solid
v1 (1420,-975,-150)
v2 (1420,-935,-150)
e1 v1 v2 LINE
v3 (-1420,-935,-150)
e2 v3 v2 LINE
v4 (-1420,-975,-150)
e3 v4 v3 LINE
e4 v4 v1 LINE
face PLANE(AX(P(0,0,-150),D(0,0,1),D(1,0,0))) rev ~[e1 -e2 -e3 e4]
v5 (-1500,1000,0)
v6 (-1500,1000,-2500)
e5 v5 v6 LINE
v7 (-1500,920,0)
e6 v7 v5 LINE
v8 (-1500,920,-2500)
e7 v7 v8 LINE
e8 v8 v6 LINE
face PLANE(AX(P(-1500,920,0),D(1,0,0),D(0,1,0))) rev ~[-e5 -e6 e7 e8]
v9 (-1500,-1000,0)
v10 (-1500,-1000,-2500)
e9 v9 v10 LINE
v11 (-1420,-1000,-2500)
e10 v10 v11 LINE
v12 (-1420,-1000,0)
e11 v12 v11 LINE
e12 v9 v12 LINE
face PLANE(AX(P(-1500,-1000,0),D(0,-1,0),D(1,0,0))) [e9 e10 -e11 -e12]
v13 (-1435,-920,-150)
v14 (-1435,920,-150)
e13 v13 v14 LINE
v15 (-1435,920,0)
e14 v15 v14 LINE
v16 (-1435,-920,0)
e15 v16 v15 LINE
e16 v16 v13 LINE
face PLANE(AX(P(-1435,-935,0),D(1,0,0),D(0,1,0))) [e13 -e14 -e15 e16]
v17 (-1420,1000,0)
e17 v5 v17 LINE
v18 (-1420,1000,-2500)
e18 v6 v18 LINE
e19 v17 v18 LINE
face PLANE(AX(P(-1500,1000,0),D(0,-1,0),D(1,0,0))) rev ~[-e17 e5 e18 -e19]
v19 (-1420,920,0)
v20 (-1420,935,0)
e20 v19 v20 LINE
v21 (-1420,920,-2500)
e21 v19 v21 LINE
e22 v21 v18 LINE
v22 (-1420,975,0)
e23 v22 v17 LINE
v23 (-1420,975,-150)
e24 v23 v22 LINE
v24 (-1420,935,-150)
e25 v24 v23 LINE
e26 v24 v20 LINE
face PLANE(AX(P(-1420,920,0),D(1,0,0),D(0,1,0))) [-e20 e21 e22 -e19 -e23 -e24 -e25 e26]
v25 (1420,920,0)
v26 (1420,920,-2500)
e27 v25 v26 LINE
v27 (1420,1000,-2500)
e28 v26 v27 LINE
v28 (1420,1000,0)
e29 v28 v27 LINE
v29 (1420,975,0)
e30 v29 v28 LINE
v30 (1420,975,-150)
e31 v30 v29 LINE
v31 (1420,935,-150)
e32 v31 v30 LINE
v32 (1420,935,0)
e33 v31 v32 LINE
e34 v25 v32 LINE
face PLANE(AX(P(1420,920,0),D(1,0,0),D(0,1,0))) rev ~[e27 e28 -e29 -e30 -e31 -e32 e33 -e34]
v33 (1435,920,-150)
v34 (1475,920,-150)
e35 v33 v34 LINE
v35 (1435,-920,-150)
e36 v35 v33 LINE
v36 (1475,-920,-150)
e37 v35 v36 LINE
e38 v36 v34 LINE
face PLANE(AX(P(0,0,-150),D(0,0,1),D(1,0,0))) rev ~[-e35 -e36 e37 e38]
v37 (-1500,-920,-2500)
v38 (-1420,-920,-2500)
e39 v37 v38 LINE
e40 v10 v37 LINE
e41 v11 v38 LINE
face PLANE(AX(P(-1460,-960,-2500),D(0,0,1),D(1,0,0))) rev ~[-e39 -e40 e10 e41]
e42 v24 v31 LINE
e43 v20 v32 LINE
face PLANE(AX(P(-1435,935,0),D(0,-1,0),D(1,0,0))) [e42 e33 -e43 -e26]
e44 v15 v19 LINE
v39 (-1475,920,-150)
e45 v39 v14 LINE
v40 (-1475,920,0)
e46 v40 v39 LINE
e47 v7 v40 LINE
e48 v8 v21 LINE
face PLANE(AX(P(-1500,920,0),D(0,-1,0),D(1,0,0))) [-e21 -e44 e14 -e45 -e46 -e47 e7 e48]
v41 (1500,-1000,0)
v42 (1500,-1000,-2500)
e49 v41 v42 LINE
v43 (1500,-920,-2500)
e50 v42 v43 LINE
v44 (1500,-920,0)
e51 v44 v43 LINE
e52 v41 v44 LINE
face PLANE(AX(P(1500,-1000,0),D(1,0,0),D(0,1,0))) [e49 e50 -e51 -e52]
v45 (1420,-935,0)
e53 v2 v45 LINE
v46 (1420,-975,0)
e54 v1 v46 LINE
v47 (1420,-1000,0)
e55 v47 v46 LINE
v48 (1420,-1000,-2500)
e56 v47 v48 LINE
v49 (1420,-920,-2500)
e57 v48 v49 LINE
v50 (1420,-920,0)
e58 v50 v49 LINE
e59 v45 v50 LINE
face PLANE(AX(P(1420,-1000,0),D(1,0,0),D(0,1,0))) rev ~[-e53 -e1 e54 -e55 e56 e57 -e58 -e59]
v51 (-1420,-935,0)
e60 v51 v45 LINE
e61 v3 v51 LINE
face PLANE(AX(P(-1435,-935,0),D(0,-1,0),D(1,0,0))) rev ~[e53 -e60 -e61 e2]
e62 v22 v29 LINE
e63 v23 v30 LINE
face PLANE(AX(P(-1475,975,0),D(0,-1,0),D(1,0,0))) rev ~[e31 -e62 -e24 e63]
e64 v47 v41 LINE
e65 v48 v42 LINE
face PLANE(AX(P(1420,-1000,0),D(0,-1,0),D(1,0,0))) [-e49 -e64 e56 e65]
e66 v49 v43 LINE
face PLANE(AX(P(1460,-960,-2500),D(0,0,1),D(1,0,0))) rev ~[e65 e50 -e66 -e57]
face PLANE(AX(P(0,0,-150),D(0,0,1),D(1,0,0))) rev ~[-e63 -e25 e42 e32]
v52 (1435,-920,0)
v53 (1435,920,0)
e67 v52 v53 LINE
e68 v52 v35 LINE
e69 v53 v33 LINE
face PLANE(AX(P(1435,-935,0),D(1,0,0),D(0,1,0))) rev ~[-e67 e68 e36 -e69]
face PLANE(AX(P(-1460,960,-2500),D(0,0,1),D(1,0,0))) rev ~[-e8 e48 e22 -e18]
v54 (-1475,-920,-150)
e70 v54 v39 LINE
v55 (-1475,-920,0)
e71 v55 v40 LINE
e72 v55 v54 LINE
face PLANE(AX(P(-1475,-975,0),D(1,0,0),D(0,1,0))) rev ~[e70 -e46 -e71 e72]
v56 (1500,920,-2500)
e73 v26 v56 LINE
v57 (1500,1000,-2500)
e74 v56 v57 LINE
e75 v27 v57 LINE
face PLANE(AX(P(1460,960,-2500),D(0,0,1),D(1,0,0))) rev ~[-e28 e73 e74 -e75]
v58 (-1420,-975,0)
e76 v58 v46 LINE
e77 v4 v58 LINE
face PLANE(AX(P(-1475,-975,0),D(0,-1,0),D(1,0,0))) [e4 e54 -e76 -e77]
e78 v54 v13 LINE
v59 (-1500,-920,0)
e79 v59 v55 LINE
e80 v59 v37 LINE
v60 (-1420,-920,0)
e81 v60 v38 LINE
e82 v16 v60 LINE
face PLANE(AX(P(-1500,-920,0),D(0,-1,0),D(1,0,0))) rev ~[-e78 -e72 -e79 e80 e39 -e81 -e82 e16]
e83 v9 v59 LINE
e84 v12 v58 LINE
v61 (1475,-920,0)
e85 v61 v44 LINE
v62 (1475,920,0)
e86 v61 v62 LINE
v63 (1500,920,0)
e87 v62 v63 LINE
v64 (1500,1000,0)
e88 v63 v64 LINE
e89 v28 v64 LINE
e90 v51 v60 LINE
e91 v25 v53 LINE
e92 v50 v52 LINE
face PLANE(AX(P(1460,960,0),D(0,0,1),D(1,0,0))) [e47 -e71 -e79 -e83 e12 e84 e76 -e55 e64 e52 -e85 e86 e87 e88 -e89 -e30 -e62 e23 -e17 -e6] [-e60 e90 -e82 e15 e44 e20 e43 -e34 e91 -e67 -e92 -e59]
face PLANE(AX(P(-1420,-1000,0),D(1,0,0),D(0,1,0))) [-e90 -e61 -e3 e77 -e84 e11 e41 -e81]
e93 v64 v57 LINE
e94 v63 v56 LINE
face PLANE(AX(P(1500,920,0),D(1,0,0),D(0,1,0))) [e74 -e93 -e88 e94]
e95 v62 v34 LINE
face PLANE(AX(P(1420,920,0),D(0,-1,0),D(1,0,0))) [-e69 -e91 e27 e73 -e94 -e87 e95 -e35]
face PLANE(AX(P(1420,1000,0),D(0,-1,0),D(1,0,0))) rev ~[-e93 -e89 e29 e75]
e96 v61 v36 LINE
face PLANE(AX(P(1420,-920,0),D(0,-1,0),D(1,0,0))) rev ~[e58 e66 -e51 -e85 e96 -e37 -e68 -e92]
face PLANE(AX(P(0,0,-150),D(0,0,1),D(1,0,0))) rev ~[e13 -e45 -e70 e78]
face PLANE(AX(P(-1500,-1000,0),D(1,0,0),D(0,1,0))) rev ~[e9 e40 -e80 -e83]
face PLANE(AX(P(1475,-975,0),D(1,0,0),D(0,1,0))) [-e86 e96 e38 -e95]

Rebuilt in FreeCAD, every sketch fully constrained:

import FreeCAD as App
import Part
import Sketcher
from FreeCAD import Vector


def add_polygon(sketch, points):
    """Adds a closed chain of lines whose ends are joined by coincident constraints."""
    first, n = sketch.GeometryCount, len(points)
    for a, b in zip(points, points[1:] + points[:1]):
        sketch.addGeometry(Part.LineSegment(App.Vector(*a, 0), App.Vector(*b, 0)), False)
    for i in range(n):
        sketch.addConstraint(Sketcher.Constraint("Coincident", first + i, 2, first + (i + 1) % n, 1))

doc = App.newDocument("Part")
body = doc.addObject("PartDesign::Body", "Body")

sketch1 = body.newObject("Sketcher::SketchObject", "Sketch")
sketch1.AttachmentSupport = (doc.getObject("XY_Plane"), [""])
sketch1.MapMode = "FlatFace"
add_polygon(sketch1, [(-1475, 975), (-1475, -975), (1475, -975), (1475, 975)])
add_polygon(sketch1, [(1435, -935), (-1435, -935), (-1435, 935), (1435, 935)])
sketch1.addConstraint([
    Sketcher.Constraint("Vertical", 0),
    Sketcher.Constraint("Horizontal", 1),
    Sketcher.Constraint("Vertical", 2),
    Sketcher.Constraint("Horizontal", 3),
    Sketcher.Constraint("Horizontal", 4),
    Sketcher.Constraint("Vertical", 5),
    Sketcher.Constraint("Horizontal", 6),
    Sketcher.Constraint("Vertical", 7),
    Sketcher.Constraint("Symmetric", 0, 2, 2, 2, -1, 1),
    Sketcher.Constraint("Symmetric", 4, 2, 6, 2, -1, 1),
    Sketcher.Constraint("DistanceX", 1, 1, 1, 2, 2950.0),
    Sketcher.Constraint("DistanceX", 4, 2, 4, 1, 2870.0),
    Sketcher.Constraint("DistanceY", 0, 2, 0, 1, 1950.0),
    Sketcher.Constraint("DistanceY", 5, 1, 5, 2, 1870.0),
])
pad1 = body.newObject("PartDesign::Pad", "Pad")
pad1.Profile = sketch1
pad1.Length = 150
pad1.Reversed = True

sketch2 = body.newObject("Sketcher::SketchObject", "Sketch001")
sketch2.AttachmentSupport = (doc.getObject("XY_Plane"), [""])
sketch2.MapMode = "FlatFace"
add_polygon(sketch2, [(1420, 1000), (1420, 920), (1500, 920), (1500, 1000)])
add_polygon(sketch2, [(1420, -920), (1420, -1000), (1500, -1000), (1500, -920)])
add_polygon(sketch2, [(-1500, -920), (-1500, -1000), (-1420, -1000), (-1420, -920)])
add_polygon(sketch2, [(-1500, 1000), (-1500, 920), (-1420, 920), (-1420, 1000)])
sketch2.addConstraint([
    Sketcher.Constraint("Vertical", 0),
    Sketcher.Constraint("Horizontal", 1),
    Sketcher.Constraint("Vertical", 2),
    Sketcher.Constraint("Horizontal", 3),
    Sketcher.Constraint("Vertical", 4),
    Sketcher.Constraint("Horizontal", 5),
    Sketcher.Constraint("Vertical", 6),
    Sketcher.Constraint("Horizontal", 7),
    Sketcher.Constraint("Vertical", 8),
    Sketcher.Constraint("Horizontal", 9),
    Sketcher.Constraint("Vertical", 10),
    Sketcher.Constraint("Horizontal", 11),
    Sketcher.Constraint("Vertical", 12),
    Sketcher.Constraint("Horizontal", 13),
    Sketcher.Constraint("Vertical", 14),
    Sketcher.Constraint("Horizontal", 15),
    Sketcher.Constraint("Symmetric", 2, 2, 8, 2, -1, 1),
    Sketcher.Constraint("Symmetric", 0, 2, 10, 2, -1, 1),
    Sketcher.Constraint("Symmetric", 6, 2, 12, 2, -1, 1),
    Sketcher.Constraint("Symmetric", 4, 2, 14, 2, -1, 1),
    Sketcher.Constraint("Symmetric", 5, 2, 8, 2, -2),
    Sketcher.Constraint("Symmetric", 7, 2, 10, 2, -2),
    Sketcher.Constraint("Equal", 15, 0),
    Sketcher.Constraint("DistanceX", 1, 1, 1, 2, 80.0),
    Sketcher.Constraint("DistanceX", -1, 1, 0, 2, 1420.0),
    Sketcher.Constraint("DistanceY", -1, 1, 0, 2, 920.0),
])
pad2 = body.newObject("PartDesign::Pad", "Pad001")
pad2.Profile = sketch2
pad2.Length = 2500
pad2.Reversed = True

doc.recompute()
